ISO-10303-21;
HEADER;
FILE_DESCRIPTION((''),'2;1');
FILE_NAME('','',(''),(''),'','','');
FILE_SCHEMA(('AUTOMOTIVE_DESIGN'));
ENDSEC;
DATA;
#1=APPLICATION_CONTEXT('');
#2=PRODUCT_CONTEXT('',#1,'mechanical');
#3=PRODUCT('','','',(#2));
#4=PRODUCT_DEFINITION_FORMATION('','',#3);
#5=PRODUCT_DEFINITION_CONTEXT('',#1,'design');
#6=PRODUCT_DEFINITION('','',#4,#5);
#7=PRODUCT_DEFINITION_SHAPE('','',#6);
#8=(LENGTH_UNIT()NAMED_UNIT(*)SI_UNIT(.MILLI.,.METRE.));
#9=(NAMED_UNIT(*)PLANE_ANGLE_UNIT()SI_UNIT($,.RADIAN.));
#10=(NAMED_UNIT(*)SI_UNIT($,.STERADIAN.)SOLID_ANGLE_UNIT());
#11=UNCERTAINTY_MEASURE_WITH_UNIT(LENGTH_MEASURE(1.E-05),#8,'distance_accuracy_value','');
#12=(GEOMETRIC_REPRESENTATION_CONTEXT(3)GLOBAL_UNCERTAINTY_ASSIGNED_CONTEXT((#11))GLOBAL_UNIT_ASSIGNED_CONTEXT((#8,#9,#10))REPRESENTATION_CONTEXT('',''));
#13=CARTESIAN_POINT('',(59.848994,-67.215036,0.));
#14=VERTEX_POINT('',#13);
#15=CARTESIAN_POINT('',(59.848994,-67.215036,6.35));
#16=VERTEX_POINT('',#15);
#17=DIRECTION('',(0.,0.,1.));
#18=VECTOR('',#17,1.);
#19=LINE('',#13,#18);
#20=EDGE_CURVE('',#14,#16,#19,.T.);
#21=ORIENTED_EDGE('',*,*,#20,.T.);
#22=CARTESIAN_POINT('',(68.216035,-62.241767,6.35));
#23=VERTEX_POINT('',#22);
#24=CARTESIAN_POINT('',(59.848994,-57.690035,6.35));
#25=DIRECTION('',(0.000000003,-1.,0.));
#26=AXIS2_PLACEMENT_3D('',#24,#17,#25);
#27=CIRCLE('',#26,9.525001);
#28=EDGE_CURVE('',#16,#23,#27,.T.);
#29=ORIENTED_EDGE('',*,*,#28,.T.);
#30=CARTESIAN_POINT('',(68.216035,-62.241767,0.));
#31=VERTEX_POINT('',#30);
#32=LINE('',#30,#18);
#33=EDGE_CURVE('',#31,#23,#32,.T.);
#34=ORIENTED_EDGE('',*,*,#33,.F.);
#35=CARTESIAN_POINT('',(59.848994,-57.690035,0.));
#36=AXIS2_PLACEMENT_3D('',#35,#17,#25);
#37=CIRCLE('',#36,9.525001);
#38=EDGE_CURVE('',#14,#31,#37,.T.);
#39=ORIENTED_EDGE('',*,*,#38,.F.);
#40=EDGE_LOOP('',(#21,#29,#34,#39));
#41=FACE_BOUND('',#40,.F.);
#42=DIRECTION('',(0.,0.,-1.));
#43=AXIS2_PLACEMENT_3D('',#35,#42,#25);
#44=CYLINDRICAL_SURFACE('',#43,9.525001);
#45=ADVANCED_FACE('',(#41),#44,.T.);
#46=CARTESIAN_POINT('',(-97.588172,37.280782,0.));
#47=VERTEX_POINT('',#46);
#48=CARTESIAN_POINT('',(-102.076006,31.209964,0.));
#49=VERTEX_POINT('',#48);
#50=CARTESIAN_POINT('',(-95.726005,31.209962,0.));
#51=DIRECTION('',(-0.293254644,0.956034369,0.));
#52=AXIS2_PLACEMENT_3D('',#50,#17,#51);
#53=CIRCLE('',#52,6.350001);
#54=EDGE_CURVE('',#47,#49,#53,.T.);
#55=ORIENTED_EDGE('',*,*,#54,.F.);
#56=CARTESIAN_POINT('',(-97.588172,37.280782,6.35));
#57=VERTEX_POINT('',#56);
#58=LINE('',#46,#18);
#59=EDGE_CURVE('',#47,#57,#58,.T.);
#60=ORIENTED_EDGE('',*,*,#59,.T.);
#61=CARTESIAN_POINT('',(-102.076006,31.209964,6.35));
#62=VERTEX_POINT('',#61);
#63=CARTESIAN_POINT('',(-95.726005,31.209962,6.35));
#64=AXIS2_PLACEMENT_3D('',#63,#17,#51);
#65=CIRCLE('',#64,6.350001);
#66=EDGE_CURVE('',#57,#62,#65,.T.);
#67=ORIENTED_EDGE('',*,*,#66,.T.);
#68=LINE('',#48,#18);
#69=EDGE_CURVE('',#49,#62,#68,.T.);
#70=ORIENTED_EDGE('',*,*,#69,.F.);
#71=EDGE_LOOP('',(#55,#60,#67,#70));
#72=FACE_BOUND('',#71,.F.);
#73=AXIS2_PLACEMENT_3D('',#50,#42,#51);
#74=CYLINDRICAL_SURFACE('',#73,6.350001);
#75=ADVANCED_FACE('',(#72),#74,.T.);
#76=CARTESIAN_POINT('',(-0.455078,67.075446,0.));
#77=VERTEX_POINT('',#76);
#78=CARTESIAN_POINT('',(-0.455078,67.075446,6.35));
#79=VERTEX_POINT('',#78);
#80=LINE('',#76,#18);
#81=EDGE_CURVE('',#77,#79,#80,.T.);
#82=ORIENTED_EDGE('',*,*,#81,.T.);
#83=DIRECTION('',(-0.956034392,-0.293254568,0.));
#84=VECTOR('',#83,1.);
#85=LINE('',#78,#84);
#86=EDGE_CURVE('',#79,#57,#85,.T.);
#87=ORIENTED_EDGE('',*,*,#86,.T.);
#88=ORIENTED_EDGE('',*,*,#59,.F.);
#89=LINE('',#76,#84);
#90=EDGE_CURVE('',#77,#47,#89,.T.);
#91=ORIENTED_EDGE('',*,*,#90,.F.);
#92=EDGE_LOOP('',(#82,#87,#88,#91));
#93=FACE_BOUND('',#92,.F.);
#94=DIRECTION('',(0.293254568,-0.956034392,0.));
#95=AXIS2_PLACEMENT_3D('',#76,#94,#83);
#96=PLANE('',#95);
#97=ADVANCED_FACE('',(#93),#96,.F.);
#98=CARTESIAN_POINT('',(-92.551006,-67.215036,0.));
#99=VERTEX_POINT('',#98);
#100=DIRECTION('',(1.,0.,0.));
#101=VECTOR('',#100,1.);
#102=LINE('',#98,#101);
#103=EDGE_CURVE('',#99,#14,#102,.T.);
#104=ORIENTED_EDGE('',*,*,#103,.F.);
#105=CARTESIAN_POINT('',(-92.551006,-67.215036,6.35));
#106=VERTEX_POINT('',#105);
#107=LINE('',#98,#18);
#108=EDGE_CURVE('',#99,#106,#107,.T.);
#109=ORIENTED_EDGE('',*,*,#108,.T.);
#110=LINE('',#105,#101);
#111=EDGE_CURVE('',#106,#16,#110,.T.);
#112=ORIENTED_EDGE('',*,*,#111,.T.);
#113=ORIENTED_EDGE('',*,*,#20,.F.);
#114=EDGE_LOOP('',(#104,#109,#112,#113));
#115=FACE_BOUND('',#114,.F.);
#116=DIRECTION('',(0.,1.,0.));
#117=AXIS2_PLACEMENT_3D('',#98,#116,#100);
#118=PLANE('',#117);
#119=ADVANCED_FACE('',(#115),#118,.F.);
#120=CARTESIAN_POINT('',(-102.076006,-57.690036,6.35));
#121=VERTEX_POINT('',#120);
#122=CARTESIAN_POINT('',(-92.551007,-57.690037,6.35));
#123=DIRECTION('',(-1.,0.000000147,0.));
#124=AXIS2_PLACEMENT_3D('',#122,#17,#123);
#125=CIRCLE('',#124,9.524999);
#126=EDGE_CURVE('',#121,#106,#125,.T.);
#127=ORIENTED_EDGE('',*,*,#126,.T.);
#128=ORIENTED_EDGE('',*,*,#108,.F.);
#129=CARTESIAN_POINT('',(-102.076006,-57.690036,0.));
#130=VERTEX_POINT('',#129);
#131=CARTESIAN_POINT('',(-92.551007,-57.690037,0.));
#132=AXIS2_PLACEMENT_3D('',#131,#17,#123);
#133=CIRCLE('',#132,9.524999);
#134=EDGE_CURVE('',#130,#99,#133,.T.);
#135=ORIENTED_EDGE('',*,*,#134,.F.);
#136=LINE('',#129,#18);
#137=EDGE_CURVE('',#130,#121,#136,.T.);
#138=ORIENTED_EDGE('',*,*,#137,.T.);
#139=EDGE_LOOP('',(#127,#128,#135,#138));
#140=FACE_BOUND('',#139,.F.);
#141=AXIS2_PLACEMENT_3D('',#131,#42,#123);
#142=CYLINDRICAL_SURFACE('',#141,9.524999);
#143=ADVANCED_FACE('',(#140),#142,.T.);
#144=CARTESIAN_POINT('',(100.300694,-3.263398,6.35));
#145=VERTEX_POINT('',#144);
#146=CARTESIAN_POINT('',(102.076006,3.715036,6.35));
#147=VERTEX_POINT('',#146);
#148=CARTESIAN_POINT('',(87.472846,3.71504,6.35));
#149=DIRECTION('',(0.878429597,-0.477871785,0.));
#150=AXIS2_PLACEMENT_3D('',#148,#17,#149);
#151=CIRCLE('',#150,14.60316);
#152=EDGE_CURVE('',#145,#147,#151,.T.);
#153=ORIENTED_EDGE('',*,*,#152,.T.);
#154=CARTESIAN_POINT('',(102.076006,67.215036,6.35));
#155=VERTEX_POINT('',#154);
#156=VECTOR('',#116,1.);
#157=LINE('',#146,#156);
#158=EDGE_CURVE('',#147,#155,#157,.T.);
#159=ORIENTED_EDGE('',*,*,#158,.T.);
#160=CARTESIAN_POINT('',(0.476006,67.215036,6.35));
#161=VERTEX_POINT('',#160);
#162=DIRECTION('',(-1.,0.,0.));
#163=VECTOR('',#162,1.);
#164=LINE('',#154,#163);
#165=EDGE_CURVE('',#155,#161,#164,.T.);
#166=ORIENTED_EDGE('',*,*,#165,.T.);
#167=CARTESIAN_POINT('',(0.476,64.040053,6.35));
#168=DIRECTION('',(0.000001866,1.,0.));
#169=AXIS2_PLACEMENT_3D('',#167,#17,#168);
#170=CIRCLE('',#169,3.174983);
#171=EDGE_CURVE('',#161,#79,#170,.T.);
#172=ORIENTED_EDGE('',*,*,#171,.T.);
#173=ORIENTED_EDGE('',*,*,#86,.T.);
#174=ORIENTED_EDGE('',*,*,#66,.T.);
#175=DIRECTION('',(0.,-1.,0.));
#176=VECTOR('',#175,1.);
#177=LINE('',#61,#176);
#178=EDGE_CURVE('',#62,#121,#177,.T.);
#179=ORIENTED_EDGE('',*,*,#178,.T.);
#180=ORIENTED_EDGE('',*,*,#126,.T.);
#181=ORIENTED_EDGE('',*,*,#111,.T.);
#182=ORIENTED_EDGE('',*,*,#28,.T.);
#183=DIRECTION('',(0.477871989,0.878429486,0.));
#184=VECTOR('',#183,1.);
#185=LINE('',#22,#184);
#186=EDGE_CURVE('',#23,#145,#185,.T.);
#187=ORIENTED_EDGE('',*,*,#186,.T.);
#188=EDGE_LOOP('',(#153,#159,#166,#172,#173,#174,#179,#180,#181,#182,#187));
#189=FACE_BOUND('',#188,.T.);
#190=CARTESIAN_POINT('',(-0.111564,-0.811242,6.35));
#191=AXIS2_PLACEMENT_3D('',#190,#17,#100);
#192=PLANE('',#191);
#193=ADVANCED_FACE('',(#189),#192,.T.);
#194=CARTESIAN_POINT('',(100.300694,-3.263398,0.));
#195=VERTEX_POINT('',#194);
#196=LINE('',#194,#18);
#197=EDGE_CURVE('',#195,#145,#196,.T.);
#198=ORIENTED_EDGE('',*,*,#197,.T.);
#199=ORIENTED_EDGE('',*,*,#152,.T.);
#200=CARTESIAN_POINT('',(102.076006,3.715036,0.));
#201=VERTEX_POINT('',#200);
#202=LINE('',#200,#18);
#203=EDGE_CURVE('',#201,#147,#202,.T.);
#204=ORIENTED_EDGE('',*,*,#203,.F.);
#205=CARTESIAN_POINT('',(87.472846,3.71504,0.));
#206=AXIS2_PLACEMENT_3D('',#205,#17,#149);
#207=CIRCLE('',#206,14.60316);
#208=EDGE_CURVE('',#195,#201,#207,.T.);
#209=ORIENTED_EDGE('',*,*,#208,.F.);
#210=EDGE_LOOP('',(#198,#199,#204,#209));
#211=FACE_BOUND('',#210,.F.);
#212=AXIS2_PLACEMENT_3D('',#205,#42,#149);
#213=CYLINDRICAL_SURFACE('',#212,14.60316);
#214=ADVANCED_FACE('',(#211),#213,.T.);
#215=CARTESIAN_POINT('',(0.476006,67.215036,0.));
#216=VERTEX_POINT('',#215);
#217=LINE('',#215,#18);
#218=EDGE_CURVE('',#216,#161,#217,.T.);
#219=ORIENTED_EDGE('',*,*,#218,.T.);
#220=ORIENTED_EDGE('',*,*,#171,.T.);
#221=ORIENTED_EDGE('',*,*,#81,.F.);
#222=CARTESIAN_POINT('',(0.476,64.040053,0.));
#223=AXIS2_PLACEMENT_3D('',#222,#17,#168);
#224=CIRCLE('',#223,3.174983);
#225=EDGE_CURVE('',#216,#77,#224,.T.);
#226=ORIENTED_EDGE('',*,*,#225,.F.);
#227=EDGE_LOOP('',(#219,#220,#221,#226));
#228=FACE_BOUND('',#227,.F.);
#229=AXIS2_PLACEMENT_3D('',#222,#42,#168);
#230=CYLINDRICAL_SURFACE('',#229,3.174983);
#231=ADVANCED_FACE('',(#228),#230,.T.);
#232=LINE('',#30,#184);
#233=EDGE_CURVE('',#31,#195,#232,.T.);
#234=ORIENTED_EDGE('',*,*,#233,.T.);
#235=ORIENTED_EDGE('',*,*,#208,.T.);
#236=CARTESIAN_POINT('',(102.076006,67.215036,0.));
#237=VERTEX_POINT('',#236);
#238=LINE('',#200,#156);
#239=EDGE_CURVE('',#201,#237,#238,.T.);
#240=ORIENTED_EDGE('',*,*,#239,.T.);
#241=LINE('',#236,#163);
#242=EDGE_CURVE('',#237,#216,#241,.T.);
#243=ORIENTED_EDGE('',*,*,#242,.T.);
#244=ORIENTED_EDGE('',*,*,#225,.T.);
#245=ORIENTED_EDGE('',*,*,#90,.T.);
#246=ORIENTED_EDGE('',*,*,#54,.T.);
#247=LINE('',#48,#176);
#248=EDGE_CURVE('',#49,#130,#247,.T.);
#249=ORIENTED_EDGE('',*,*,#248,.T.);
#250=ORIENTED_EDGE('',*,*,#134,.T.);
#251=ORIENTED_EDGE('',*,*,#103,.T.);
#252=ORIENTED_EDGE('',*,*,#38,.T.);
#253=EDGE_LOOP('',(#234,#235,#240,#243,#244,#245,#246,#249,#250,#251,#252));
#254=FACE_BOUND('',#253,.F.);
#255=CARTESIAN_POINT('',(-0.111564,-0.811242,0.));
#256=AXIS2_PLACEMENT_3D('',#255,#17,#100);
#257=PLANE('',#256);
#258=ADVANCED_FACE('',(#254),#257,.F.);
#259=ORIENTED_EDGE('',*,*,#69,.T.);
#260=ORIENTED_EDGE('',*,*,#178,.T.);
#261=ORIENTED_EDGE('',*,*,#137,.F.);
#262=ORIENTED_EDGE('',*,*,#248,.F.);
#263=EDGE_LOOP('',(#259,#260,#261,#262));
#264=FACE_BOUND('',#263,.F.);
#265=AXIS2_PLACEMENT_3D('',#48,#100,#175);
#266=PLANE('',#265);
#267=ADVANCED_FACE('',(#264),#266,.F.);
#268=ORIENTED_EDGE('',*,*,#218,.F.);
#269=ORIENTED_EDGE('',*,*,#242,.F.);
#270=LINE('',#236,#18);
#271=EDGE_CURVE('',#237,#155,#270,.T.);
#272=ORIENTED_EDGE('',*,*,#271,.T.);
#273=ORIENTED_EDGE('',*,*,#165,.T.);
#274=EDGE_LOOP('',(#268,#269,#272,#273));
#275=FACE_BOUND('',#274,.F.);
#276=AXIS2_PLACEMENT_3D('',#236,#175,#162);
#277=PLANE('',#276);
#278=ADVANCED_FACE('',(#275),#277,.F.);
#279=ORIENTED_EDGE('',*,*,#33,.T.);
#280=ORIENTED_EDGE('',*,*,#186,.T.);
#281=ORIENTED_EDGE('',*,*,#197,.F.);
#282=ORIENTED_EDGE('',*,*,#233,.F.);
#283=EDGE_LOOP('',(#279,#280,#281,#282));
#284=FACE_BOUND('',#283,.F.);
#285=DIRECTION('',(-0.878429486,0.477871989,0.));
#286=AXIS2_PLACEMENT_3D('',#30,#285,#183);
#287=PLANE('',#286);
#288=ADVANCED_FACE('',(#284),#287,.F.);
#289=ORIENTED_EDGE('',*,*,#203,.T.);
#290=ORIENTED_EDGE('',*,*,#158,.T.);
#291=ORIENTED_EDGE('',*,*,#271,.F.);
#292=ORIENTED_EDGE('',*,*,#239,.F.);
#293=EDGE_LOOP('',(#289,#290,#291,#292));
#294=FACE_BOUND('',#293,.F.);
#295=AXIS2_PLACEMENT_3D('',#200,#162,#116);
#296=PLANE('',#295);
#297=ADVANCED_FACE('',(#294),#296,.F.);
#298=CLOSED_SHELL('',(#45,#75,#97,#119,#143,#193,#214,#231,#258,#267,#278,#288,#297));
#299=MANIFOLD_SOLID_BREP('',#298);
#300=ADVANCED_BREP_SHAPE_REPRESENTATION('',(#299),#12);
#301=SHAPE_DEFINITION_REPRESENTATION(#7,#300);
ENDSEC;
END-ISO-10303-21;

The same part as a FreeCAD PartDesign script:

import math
import FreeCAD as App
import Part
import Sketcher

V = App.Vector
Q = App.Units.Quantity

doc = App.newDocument("Part")
body = doc.addObject("PartDesign::Body", "Body")

# Sketch on XY plane
sketch1 = doc.addObject("Sketcher::SketchObject", "Sketch")
body.addObject(sketch1)
sketch1.AttachmentSupport = (doc.XY_Plane, [""])
sketch1.MapMode = "FlatFace"
sketch1.addGeometry(Part.LineSegment(V(102.1, 3.7, 0), V(102.1, 67.2, 0)), False)
sketch1.addGeometry(Part.LineSegment(V(102.1, 67.2, 0), V(0.5, 67.2, 0)), False)
sketch1.addGeometry(Part.ArcOfCircle(Part.Circle(V(0.5, 64, 0), V(0, 0, 1), 3.2), math.radians(90), math.radians(107.05)), False)
sketch1.addGeometry(Part.LineSegment(V(-0.5, 67.1, 0), V(-97.6, 37.3, 0)), False)
sketch1.addGeometry(Part.ArcOfCircle(Part.Circle(V(-95.7, 31.2, 0), V(0, 0, 1), 6.4), math.radians(107), math.radians(180)), False)
sketch1.addGeometry(Part.LineSegment(V(-102.1, 31.2, 0), V(-102.1, -57.7, 0)), False)
sketch1.addGeometry(Part.ArcOfCircle(Part.Circle(V(-92.6, -57.7, 0), V(0, 0, 1), 9.5), math.radians(180), math.radians(270)), False)
sketch1.addGeometry(Part.LineSegment(V(-92.6, -67.2, 0), V(59.8, -67.2, 0)), False)
sketch1.addGeometry(Part.ArcOfCircle(Part.Circle(V(59.8, -57.7, 0), V(0, 0, 1), 9.5), math.radians(-90), math.radians(-29)), False)
sketch1.addGeometry(Part.LineSegment(V(68.2, -62.2, 0), V(100.3, -3.3, 0)), False)
sketch1.addGeometry(Part.ArcOfCircle(Part.Circle(V(87.5, 3.7, 0), V(0, 0, 1), 14.6), math.radians(-29), math.radians(0)), False)
sketch1.addConstraint(Sketcher.Constraint("Coincident", 0, 2, 1, 1))
sketch1.addConstraint(Sketcher.Constraint("Tangent", 1, 2, 2, 1))
sketch1.addConstraint(Sketcher.Constraint("Tangent", 2, 2, 3, 1))
sketch1.addConstraint(Sketcher.Constraint("Tangent", 3, 2, 4, 1))
sketch1.addConstraint(Sketcher.Constraint("Tangent", 4, 2, 5, 1))
sketch1.addConstraint(Sketcher.Constraint("Tangent", 5, 2, 6, 1))
sketch1.addConstraint(Sketcher.Constraint("Tangent", 6, 2, 7, 1))
sketch1.addConstraint(Sketcher.Constraint("Tangent", 7, 2, 8, 1))
sketch1.addConstraint(Sketcher.Constraint("Tangent", 8, 2, 9, 1))
sketch1.addConstraint(Sketcher.Constraint("Tangent", 9, 2, 10, 1))
sketch1.addConstraint(Sketcher.Constraint("Tangent", 10, 2, 0, 1))
sketch1.addConstraint(Sketcher.Constraint("Vertical", 0))
sketch1.addConstraint(Sketcher.Constraint("Horizontal", 1))
sketch1.addConstraint(Sketcher.Constraint("Vertical", 5))
sketch1.addConstraint(Sketcher.Constraint("Horizontal", 7))
sketch1.addConstraint(Sketcher.Constraint("Equal", 6, 8))
sketch1.addConstraint(Sketcher.Constraint("DistanceX", 1, 2, 1, 1, Q("4 in")))
sketch1.addConstraint(Sketcher.Constraint("DistanceX", 7, 1, 7, 2, Q("6 in")))
sketch1.addConstraint(Sketcher.Constraint("Radius", 4, Q("0.2500001 in")))
sketch1.addConstraint(Sketcher.Constraint("Distance", 3, Q("4 in")))
sketch1.addConstraint(Sketcher.Constraint("DistanceY", 0, 1, 0, 2, Q("2.5 in")))
sketch1.addConstraint(Sketcher.Constraint("DistanceY", 5, 2, 5, 1, Q("3.5 in")))
sketch1.addConstraint(Sketcher.Constraint("Radius", 6, Q("0.3749999 in")))
sketch1.addConstraint(Sketcher.Constraint("Radius", 10, Q("14.60316 mm")))
sketch1.addConstraint(Sketcher.Constraint("Radius", 2, Q("3.174983 mm")))
sketch1.addConstraint(Sketcher.Constraint("Distance", 9, Q("67.140698 mm")))
sketch1.addConstraint(Sketcher.Constraint("DistanceX", -1, 1, 2, 3, Q("0.476 mm")))
sketch1.addConstraint(Sketcher.Constraint("DistanceY", 9, 2, -1, 1, Q("3.263398 mm")))
pad1 = doc.addObject("PartDesign::Pad", "Pad")
body.addObject(pad1)
pad1.Profile = sketch1
pad1.Length = Q("0.25 in")

doc.recompute()
